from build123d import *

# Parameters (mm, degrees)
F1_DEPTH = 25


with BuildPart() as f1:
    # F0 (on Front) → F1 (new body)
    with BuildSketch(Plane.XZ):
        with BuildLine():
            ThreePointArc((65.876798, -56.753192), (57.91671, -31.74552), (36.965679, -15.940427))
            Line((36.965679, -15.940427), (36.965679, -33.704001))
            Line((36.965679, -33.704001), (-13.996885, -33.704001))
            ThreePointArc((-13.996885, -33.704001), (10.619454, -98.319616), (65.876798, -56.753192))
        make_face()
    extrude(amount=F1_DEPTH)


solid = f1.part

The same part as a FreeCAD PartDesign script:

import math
import FreeCAD as App
import Part
import Sketcher

doc = App.newDocument("Part")
body = doc.addObject("PartDesign::Body", "Body")

# Sketch on XZ plane
sketch1 = body.newObject("Sketcher::SketchObject", "Sketch")
sketch1.AttachmentSupport = (doc.getObject("XZ_Plane"), [""])
sketch1.MapMode = "FlatFace"
sketch1.addGeometry(Part.ArcOfCircle(Part.Circle(App.Vector(23, -57, 0), App.Vector(0, 0, 1), 43), math.radians(0), math.radians(71)), False)
sketch1.addGeometry(Part.LineSegment(App.Vector(37, -16, 0), App.Vector(37, -34, 0)), False)
sketch1.addGeometry(Part.LineSegment(App.Vector(37, -34, 0), App.Vector(-14, -34, 0)), False)
sketch1.addGeometry(Part.ArcOfCircle(Part.Circle(App.Vector(23, -57, 0), App.Vector(0, 0, 1), 43), math.radians(148), math.radians(360)), False)
sketch1.addConstraint(Sketcher.Constraint("Coincident", 0, 2, 1, 1))
sketch1.addConstraint(Sketcher.Constraint("Coincident", 1, 2, 2, 1))
sketch1.addConstraint(Sketcher.Constraint("Coincident", 2, 2, 3, 1))
sketch1.addConstraint(Sketcher.Constraint("Tangent", 3, 2, 0, 1))
sketch1.addConstraint(Sketcher.Constraint("Vertical", 1))
sketch1.addConstraint(Sketcher.Constraint("Horizontal", 2))
sketch1.addConstraint(Sketcher.Constraint("Equal", 0, 3))
sketch1.addConstraint(Sketcher.Constraint("Horizontal", 0, 3, 3, 2))
sketch1.addConstraint(Sketcher.Constraint("Radius", 0, 43.262498))
sketch1.addConstraint(Sketcher.Constraint("DistanceY", 1, 2, -1, 1, 33.704001))
sketch1.addConstraint(Sketcher.Constraint("DistanceX", -1, 1, 0, 3, 22.6143))
sketch1.addConstraint(Sketcher.Constraint("DistanceX", 2, 2, 2, 1, 50.962564))
sketch1.addConstraint(Sketcher.Constraint("DistanceY", 1, 2, 1, 1, 17.763574))
pad1 = body.newObject("PartDesign::Pad", "Pad")
pad1.Profile = sketch1
pad1.Length = 25

doc.recompute()
